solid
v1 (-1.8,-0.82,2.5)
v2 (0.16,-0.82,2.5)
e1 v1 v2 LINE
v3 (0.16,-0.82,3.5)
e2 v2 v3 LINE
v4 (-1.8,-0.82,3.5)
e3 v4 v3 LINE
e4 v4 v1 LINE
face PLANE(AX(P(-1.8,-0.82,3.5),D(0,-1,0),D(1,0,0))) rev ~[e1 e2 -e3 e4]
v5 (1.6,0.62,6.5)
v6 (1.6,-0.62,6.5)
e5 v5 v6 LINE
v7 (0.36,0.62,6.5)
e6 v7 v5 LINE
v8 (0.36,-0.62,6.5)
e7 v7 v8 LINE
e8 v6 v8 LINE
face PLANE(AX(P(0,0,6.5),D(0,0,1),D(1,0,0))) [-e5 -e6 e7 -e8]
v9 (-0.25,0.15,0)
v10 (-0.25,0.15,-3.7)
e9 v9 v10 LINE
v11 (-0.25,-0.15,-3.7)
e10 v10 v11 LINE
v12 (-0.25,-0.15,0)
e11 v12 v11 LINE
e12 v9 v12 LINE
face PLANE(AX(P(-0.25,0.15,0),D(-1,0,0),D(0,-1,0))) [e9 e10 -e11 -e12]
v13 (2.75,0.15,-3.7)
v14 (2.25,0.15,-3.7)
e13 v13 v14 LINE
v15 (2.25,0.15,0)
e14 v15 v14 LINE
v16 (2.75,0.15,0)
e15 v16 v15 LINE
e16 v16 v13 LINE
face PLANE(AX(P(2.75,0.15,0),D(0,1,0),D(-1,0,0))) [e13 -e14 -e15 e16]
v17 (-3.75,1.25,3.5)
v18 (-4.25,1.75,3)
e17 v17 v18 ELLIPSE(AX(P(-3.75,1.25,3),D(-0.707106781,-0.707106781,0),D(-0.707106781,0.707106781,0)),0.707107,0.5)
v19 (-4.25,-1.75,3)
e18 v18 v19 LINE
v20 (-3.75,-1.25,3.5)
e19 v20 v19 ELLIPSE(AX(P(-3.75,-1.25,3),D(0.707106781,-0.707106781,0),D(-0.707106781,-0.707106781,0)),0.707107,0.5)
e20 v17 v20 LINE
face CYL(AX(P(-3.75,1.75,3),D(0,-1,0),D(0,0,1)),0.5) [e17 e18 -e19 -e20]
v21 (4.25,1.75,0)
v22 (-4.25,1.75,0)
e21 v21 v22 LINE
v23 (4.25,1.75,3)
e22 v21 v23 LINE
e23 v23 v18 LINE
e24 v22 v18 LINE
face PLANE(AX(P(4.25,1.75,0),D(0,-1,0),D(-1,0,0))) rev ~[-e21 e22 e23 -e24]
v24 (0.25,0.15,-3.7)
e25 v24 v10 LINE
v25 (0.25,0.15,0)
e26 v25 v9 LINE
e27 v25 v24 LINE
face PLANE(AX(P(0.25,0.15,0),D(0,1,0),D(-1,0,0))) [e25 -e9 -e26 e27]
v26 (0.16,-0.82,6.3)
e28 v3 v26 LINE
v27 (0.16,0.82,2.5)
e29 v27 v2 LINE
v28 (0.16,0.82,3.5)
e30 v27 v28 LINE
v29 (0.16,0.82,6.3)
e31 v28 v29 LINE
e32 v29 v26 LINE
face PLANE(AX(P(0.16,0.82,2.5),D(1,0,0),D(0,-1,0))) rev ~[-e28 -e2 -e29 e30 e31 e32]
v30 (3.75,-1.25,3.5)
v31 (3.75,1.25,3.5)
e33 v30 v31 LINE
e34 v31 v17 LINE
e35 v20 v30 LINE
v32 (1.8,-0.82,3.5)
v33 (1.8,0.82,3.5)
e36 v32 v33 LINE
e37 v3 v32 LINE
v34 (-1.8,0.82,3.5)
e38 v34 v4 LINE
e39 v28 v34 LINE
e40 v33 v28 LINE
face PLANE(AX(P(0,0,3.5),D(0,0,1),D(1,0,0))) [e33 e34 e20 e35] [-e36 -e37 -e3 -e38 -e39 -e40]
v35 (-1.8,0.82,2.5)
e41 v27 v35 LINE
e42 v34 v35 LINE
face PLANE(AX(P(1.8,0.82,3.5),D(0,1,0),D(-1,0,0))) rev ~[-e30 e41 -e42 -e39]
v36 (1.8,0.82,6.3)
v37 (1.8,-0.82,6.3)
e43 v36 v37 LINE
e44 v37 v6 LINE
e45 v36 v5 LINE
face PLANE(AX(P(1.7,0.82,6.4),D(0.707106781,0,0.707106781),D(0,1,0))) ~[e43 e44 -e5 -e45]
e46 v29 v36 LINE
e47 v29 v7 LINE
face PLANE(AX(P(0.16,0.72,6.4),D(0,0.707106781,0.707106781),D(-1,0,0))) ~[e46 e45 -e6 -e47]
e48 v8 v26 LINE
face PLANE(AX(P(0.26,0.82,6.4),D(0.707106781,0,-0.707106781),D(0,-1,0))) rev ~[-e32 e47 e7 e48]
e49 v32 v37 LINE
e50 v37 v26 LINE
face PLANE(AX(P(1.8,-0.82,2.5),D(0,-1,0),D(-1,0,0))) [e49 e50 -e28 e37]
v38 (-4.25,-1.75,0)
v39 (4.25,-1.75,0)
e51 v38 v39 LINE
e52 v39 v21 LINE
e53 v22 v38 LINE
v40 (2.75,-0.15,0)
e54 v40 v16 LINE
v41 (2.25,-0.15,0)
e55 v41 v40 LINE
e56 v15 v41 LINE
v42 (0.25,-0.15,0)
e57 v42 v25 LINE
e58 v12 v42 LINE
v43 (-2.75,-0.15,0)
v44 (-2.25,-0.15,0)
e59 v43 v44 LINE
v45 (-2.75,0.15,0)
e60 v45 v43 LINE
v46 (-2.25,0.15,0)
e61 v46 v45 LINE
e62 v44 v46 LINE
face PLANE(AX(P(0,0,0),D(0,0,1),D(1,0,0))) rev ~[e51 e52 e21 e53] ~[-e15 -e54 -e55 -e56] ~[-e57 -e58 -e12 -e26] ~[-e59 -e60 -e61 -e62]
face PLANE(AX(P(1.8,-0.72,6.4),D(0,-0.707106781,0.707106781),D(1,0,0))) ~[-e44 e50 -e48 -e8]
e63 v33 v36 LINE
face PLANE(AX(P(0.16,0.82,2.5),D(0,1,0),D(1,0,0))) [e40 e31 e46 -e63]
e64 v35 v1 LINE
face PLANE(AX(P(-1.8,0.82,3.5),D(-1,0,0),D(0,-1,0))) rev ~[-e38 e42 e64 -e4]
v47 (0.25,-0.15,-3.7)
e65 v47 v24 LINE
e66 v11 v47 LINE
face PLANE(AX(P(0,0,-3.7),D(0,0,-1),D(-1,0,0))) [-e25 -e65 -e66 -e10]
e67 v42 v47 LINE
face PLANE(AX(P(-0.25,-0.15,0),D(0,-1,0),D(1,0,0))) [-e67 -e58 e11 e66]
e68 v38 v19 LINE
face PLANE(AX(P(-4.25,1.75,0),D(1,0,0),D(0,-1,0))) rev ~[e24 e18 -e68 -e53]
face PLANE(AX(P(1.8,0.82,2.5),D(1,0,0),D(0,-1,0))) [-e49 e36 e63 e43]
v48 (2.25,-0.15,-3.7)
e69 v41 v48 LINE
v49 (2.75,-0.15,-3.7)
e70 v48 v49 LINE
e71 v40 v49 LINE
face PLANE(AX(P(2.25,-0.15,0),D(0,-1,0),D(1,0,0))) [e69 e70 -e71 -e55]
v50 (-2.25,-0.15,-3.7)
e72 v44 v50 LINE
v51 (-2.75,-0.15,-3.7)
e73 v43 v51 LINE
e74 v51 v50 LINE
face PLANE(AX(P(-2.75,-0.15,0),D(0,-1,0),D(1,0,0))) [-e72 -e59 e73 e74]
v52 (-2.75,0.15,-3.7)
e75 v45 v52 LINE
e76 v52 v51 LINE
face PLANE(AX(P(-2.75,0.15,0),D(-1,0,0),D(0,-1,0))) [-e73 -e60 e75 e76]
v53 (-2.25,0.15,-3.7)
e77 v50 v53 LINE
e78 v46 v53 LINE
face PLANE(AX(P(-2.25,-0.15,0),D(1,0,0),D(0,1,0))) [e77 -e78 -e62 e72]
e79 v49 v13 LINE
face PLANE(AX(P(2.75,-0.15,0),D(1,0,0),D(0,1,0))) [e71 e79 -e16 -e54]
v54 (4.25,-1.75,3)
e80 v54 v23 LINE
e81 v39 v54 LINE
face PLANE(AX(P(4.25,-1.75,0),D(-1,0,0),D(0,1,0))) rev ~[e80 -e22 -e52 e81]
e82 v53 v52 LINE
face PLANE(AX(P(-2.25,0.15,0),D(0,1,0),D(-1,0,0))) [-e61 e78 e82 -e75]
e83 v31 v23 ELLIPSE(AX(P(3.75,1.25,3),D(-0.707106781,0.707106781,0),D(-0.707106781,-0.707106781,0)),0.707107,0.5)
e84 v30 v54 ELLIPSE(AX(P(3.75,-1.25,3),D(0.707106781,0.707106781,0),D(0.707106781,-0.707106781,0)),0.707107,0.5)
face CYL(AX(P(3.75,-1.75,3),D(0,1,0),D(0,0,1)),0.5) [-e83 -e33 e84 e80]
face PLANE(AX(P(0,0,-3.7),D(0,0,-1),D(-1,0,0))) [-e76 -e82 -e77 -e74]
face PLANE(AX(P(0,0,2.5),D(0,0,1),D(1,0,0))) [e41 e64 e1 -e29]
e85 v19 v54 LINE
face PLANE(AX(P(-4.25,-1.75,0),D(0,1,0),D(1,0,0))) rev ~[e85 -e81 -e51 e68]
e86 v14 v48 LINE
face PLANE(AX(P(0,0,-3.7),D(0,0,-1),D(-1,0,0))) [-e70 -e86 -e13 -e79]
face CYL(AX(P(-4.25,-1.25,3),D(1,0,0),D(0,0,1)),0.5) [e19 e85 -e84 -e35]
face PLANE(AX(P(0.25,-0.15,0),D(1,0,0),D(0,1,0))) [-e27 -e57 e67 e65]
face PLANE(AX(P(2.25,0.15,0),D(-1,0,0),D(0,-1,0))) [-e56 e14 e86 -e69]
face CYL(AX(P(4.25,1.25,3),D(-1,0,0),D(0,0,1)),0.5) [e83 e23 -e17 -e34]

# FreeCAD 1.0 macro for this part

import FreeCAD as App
import Part
import Sketcher
Q = App.Units.Quantity


def edges_at(feature, points):
    """Names of the edges that pass closest to the given points."""
    edges = feature.Shape.Edges
    near = lambda p: min(range(len(edges)), key=lambda i: edges[i].distToShape(Part.Vertex(*p))[0])
    return sorted({f"Edge{near(p) + 1}" for p in points})


def add_polygon(sketch, points):
    """Adds a closed chain of lines whose ends are joined by coincident constraints."""
    first, n = sketch.GeometryCount, len(points)
    for a, b in zip(points, points[1:] + points[:1]):
        sketch.addGeometry(Part.LineSegment(App.Vector(*a, 0), App.Vector(*b, 0)), False)
    for i in range(n):
        sketch.addConstraint(Sketcher.Constraint("Coincident", first + i, 2, first + (i + 1) % n, 1))

doc = App.newDocument("Part")
params = doc.addObject("Spreadsheet::Sheet", "Params")
for row, (alias, value) in enumerate([
    ("sketch1_width", "8.5 mm"),
    ("sketch1_height", "3.5 mm"),
    ("pad1_length", "3.5 mm"),
    ("sketch2_width", "3.6 mm"),
    ("sketch2_height", "1.64 mm"),
    ("pocket1_length", "1 mm"),
    ("sketch3_width", "1.64 mm"),
    ("pad2_length", "4 mm"),
    ("fillet_radius", "0.5 mm"),
    ("chamfer_size", "0.2 mm"),
    ("sketch4_width", "0.5 mm"),
    ("sketch4_height", "0.3 mm"),
    ("pad3_length", "3.7 mm"),
], start=1):
    params.set(f"A{row}", alias)
    params.set(f"B{row}", "=" + value)
    params.setAlias(f"B{row}", alias)

body = doc.addObject("PartDesign::Body", "Body")

# Sketch on XY plane
sketch1 = body.newObject("Sketcher::SketchObject", "Sketch")
sketch1.AttachmentSupport = (doc.getObject("XY_Plane"), [""])
sketch1.MapMode = "FlatFace"
add_polygon(sketch1, [(4.25, -1.75), (4.25, 1.75), (-4.25, 1.75), (-4.25, -1.75)])  # lines 0-3
sketch1.addConstraint(Sketcher.Constraint("Vertical", 0))
sketch1.addConstraint(Sketcher.Constraint("Horizontal", 1))
sketch1.addConstraint(Sketcher.Constraint("Vertical", 2))
sketch1.addConstraint(Sketcher.Constraint("Horizontal", 3))
sketch1.addConstraint(Sketcher.Constraint("Symmetric", 0, 2, 2, 2, -1, 1))
sketch1.addConstraint(Sketcher.Constraint("DistanceX", 1, 2, 1, 1, Q("8.5 mm")))
sketch1.addConstraint(Sketcher.Constraint("DistanceY", 0, 1, 0, 2, Q("3.5 mm")))
sketch1.setExpression("Constraints[9]", "Params.sketch1_width")
sketch1.setExpression("Constraints[10]", "Params.sketch1_height")
pad1 = body.newObject("PartDesign::Pad", "Pad")
pad1.Profile = sketch1
pad1.setExpression("Length", "Params.pad1_length")

# Sketch on XY plane
sketch2 = body.newObject("Sketcher::SketchObject", "Sketch001")
sketch2.AttachmentSupport = (doc.getObject("XY_Plane"), [""])
sketch2.MapMode = "FlatFace"
sketch2.AttachmentOffset = App.Placement(App.Vector(0, 0, 3.5), App.Rotation())
add_polygon(sketch2, [(1.8, -0.82), (1.8, 0.82), (-1.8, 0.82), (-1.8, -0.82)])  # lines 0-3
sketch2.addConstraint(Sketcher.Constraint("Vertical", 0))
sketch2.addConstraint(Sketcher.Constraint("Horizontal", 1))
sketch2.addConstraint(Sketcher.Constraint("Vertical", 2))
sketch2.addConstraint(Sketcher.Constraint("Horizontal", 3))
sketch2.addConstraint(Sketcher.Constraint("Symmetric", 0, 2, 2, 2, -1, 1))
sketch2.addConstraint(Sketcher.Constraint("DistanceX", 1, 2, 1, 1, Q("3.6 mm")))
sketch2.addConstraint(Sketcher.Constraint("DistanceY", 0, 1, 0, 2, Q("1.64 mm")))
sketch2.setExpression("Constraints[9]", "Params.sketch2_width")
sketch2.setExpression("Constraints[10]", "Params.sketch2_height")
pocket1 = body.newObject("PartDesign::Pocket", "Pocket")
pocket1.Profile = sketch2
pocket1.setExpression("Length", "Params.pocket1_length")

# Sketch on XY plane
sketch3 = body.newObject("Sketcher::SketchObject", "Sketch002")
sketch3.AttachmentSupport = (doc.getObject("XY_Plane"), [""])
sketch3.MapMode = "FlatFace"
sketch3.AttachmentOffset = App.Placement(App.Vector(0, 0, 2.5), App.Rotation())
add_polygon(sketch3, [(0.16, 0.82), (0.16, -0.82), (1.8, -0.82), (1.8, 0.82)])  # lines 0-3
sketch3.addConstraint(Sketcher.Constraint("Vertical", 0))
sketch3.addConstraint(Sketcher.Constraint("Horizontal", 1))
sketch3.addConstraint(Sketcher.Constraint("Vertical", 2))
sketch3.addConstraint(Sketcher.Constraint("Horizontal", 3))
sketch3.addConstraint(Sketcher.Constraint("Equal", 3, 0))
sketch3.addConstraint(Sketcher.Constraint("DistanceX", 1, 1, 1, 2, Q("1.64 mm")))
sketch3.addConstraint(Sketcher.Constraint("DistanceX", -1, 1, 1, 2, Q("1.8 mm")))
sketch3.addConstraint(Sketcher.Constraint("DistanceY", 0, 2, -1, 1, Q("0.82 mm")))
sketch3.setExpression("Constraints[9]", "Params.sketch3_width")
pad2 = body.newObject("PartDesign::Pad", "Pad001")
pad2.Profile = sketch3
pad2.setExpression("Length", "Params.pad2_length")
doc.recompute()

fillet = body.newObject("PartDesign::Fillet", "Fillet")
fillet.Base = (pad2, edges_at(pad2, [
    (0, 1.75, 3.5),
    (-4.25, 0, 3.5),
    (0, -1.75, 3.5),
    (4.25, 0, 3.5),
]))
fillet.setExpression("Radius", "Params.fillet_radius")
doc.recompute()

chamfer = body.newObject("PartDesign::Chamfer", "Chamfer")
chamfer.Base = (fillet, edges_at(fillet, [
    (0.98, 0.82, 6.5),
    (0.16, 0, 6.5),
    (0.98, -0.82, 6.5),
    (1.8, 0, 6.5),
]))
chamfer.setExpression("Size", "Params.chamfer_size")

# Sketch on XY plane
sketch4 = body.newObject("Sketcher::SketchObject", "Sketch003")
sketch4.AttachmentSupport = (doc.getObject("XY_Plane"), [""])
sketch4.MapMode = "FlatFace"
add_polygon(sketch4, [(2.25, 0.15), (2.75, 0.15), (2.75, -0.15), (2.25, -0.15)])  # lines 0-3
add_polygon(sketch4, [(-0.25, 0.15), (0.25, 0.15), (0.25, -0.15), (-0.25, -0.15)])  # lines 4-7
add_polygon(sketch4, [(-2.75, 0.15), (-2.25, 0.15), (-2.25, -0.15), (-2.75, -0.15)])  # lines 8-11
sketch4.addConstraint(Sketcher.Constraint("Horizontal", 0))
sketch4.addConstraint(Sketcher.Constraint("Vertical", 1))
sketch4.addConstraint(Sketcher.Constraint("Horizontal", 2))
sketch4.addConstraint(Sketcher.Constraint("Vertical", 3))
sketch4.addConstraint(Sketcher.Constraint("Horizontal", 4))
sketch4.addConstraint(Sketcher.Constraint("Vertical", 5))
sketch4.addConstraint(Sketcher.Constraint("Horizontal", 6))
sketch4.addConstraint(Sketcher.Constraint("Vertical", 7))
sketch4.addConstraint(Sketcher.Constraint("Horizontal", 8))
sketch4.addConstraint(Sketcher.Constraint("Vertical", 9))
sketch4.addConstraint(Sketcher.Constraint("Horizontal", 10))
sketch4.addConstraint(Sketcher.Constraint("Vertical", 11))
sketch4.addConstraint(Sketcher.Constraint("Symmetric", 4, 2, 6, 2, -1, 1))
sketch4.addConstraint(Sketcher.Constraint("Symmetric", 2, 2, 8, 2, -1, 1))
sketch4.addConstraint(Sketcher.Constraint("Symmetric", 0, 2, 10, 2, -1, 1))
sketch4.addConstraint(Sketcher.Constraint("Horizontal", 3, 2, 4, 2))
sketch4.addConstraint(Sketcher.Constraint("Horizontal", 2, 2, 5, 2))
sketch4.addConstraint(Sketcher.Constraint("Equal", 2, 4))
sketch4.addConstraint(Sketcher.Constraint("DistanceX", 0, 1, 0, 2, Q("0.5 mm")))
sketch4.addConstraint(Sketcher.Constraint("DistanceY", 1, 2, 1, 1, Q("0.3 mm")))
sketch4.addConstraint(Sketcher.Constraint("DistanceX", 4, 2, 0, 2, Q("2.5 mm")))
sketch4.setExpression("Constraints[30]", "Params.sketch4_width")
sketch4.setExpression("Constraints[31]", "Params.sketch4_height")
pad3 = body.newObject("PartDesign::Pad", "Pad002")
pad3.Profile = sketch4
pad3.setExpression("Length", "Params.pad3_length")
pad3.Reversed = True

doc.recompute()
